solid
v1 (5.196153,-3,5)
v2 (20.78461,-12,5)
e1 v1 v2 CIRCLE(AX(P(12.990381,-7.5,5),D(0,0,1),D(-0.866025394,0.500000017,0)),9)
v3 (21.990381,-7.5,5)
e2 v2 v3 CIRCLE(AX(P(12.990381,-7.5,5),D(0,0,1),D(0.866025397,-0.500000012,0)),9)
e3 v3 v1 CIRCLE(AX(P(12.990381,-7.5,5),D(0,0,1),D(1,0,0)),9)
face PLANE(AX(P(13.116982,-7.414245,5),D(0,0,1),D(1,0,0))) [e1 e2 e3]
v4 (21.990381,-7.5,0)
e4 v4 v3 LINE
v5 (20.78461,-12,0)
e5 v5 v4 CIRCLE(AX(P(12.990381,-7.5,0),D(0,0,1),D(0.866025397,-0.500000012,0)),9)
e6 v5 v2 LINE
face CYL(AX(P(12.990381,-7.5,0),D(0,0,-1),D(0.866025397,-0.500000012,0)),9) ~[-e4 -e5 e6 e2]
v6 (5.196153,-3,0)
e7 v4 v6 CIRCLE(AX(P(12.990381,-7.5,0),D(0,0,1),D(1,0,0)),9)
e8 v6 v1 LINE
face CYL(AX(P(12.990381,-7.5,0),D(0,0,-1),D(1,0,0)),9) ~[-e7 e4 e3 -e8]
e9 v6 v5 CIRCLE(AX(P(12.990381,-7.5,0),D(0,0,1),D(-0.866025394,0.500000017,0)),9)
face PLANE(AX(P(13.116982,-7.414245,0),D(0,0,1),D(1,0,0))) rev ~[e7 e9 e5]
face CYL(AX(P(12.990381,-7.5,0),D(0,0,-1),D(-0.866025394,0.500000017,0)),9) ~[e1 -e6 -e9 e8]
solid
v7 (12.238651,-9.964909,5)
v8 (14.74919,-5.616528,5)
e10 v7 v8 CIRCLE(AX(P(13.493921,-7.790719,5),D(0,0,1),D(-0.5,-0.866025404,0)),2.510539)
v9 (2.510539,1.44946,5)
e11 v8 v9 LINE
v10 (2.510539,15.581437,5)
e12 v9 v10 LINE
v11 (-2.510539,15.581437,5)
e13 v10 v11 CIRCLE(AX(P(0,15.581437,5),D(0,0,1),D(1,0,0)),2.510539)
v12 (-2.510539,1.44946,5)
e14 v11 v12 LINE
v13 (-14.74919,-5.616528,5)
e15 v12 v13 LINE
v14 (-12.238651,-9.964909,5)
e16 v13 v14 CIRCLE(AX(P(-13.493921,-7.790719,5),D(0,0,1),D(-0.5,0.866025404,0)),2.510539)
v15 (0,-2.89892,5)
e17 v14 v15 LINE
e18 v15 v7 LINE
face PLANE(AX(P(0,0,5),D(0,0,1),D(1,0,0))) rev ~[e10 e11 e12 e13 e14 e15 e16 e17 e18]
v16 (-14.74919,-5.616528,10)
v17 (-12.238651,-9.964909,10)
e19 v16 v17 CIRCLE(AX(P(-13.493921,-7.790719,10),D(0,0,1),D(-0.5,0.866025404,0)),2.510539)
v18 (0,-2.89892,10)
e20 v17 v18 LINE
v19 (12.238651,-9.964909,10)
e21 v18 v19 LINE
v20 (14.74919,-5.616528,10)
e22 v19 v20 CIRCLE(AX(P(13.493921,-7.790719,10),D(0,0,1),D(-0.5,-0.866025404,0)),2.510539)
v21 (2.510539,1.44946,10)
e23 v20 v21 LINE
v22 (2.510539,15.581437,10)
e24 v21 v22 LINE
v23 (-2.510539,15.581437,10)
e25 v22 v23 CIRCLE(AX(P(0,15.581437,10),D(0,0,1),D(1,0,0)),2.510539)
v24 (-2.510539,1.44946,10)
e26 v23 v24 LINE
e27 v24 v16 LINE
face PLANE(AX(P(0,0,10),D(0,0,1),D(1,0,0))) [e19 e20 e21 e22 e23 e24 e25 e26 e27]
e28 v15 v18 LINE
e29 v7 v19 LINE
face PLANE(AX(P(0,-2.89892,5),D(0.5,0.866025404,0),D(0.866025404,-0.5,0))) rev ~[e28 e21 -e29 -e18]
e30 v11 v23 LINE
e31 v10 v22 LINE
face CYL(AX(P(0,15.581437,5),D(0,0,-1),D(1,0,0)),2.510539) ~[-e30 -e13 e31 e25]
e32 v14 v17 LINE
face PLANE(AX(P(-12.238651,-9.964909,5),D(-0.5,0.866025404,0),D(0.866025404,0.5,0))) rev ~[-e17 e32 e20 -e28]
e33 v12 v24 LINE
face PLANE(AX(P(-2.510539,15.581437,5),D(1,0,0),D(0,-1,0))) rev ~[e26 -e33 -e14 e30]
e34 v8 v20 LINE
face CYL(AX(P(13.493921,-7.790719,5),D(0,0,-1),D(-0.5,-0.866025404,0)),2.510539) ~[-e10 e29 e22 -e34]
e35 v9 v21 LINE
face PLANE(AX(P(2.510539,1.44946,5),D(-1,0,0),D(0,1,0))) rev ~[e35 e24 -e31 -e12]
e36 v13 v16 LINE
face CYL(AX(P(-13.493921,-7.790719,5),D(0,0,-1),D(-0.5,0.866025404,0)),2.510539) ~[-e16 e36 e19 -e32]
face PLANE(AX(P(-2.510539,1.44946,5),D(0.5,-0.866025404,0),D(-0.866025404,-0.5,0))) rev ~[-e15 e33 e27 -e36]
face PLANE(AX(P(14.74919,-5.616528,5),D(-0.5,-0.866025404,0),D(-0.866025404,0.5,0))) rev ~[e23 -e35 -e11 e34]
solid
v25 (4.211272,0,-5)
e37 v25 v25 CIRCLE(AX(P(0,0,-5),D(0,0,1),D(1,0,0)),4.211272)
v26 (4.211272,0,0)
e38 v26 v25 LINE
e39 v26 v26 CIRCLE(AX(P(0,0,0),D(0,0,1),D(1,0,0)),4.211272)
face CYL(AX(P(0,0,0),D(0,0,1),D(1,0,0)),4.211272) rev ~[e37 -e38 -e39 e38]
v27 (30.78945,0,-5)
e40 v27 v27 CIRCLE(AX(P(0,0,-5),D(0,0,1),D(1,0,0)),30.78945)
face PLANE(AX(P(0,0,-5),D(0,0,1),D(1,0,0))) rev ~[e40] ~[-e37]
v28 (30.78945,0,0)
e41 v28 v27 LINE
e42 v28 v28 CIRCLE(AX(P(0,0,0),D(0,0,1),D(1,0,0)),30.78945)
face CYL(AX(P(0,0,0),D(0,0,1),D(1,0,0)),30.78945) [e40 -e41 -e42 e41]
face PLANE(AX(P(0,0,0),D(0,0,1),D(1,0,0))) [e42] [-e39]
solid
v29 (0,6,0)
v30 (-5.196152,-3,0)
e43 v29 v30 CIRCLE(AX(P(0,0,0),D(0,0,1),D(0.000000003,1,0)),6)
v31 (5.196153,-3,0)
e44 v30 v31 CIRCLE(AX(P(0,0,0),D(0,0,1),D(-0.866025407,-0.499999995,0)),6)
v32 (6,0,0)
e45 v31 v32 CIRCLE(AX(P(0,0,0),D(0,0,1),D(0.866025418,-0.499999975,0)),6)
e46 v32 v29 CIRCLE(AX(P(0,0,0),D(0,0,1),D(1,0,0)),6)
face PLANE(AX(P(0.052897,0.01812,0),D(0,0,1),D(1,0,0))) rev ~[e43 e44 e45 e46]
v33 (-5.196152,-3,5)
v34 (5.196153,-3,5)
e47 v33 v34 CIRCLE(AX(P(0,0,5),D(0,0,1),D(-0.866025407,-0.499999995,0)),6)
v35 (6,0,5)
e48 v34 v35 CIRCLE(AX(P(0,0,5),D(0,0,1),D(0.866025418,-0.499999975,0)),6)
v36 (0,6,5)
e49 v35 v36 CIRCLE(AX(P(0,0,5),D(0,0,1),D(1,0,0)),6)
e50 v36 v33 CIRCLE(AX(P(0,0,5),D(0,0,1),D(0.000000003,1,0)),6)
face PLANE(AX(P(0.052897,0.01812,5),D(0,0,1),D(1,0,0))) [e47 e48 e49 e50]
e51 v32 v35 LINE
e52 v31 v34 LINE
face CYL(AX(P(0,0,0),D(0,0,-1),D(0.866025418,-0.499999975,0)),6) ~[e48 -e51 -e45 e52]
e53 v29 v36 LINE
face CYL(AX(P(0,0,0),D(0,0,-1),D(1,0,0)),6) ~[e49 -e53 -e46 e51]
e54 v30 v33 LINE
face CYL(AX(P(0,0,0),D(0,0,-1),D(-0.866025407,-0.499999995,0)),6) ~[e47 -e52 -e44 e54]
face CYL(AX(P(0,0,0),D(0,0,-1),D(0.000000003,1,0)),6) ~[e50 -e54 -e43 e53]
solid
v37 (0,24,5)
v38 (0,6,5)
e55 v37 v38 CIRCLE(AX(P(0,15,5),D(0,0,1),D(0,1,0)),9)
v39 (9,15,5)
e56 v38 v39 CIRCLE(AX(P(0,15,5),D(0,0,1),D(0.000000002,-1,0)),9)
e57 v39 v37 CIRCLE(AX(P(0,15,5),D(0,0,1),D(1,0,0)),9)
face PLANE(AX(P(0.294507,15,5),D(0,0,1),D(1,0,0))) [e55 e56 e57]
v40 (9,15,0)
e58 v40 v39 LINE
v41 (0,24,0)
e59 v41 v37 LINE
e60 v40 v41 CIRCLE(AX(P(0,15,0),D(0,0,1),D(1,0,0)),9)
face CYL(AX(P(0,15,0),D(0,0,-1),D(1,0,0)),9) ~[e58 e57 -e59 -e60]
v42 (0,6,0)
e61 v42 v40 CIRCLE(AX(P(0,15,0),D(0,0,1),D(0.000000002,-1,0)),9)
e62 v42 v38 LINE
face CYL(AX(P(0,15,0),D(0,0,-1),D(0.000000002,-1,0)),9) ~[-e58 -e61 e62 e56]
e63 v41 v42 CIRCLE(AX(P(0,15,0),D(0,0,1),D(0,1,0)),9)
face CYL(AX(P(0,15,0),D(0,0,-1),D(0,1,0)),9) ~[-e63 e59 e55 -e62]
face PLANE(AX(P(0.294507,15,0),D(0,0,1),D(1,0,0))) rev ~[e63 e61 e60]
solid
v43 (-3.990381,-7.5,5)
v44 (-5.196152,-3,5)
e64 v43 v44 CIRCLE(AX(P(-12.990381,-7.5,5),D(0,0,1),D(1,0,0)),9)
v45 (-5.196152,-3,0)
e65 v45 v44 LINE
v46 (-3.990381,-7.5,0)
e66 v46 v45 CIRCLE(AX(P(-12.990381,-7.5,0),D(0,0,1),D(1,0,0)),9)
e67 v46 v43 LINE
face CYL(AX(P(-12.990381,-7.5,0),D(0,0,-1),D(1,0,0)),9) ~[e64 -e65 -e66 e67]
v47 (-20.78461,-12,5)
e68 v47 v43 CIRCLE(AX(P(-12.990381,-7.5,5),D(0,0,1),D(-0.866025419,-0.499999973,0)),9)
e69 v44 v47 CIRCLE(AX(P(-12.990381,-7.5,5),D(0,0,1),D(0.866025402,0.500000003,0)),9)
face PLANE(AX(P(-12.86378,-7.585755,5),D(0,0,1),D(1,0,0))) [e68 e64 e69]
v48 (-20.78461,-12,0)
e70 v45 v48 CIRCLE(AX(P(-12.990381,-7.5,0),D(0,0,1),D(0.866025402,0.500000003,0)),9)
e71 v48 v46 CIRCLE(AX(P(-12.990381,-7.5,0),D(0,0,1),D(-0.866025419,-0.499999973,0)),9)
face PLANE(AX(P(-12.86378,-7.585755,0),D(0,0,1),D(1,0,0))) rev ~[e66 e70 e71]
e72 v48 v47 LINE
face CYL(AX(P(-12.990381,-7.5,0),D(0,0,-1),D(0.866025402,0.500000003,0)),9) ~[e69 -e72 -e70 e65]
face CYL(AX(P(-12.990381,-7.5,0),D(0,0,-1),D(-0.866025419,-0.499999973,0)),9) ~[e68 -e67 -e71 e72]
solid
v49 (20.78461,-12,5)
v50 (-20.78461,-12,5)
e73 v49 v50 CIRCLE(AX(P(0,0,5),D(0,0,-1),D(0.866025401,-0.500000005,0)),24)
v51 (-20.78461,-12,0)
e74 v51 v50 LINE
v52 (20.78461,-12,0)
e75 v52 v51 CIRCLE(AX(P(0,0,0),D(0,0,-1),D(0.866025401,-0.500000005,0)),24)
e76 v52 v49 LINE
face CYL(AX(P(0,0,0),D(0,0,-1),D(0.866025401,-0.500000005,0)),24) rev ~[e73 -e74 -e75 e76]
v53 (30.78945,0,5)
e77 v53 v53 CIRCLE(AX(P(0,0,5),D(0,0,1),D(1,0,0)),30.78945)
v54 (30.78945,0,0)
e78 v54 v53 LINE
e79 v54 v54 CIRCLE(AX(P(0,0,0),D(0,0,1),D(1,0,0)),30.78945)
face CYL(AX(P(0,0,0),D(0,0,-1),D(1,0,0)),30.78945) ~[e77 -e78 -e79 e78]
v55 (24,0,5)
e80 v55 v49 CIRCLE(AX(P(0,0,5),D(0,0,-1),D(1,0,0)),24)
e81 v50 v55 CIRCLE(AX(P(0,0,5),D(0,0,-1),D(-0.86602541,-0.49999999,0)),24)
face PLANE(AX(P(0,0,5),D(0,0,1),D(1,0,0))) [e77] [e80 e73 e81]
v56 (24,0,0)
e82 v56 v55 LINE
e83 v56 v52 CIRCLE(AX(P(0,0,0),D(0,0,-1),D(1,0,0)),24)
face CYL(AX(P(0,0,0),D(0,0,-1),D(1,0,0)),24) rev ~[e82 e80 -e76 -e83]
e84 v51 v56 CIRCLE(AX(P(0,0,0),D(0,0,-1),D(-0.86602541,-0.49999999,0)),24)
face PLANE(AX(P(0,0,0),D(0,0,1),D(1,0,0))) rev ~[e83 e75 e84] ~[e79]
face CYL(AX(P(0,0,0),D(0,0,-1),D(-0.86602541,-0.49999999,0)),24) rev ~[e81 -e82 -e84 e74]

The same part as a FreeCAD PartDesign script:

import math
import FreeCAD as App
import Part
import Sketcher
Q = App.Units.Quantity

doc = App.newDocument("Part")
params = doc.addObject("Spreadsheet::Sheet", "Params")
for row, (alias, value) in enumerate([
    ("sketch1_radius", "9 mm"),
    ("pad1_length", "5 mm"),
    ("sketch2_radius", "6 mm"),
    ("pad2_length", "5 mm"),
    ("sketch3_radius", "24 mm"),
    ("pad3_length", "5 mm"),
    ("sketch4_radius", "9 mm"),
    ("pad4_length", "5 mm"),
    ("sketch5_radius", "9 mm"),
    ("pad5_length", "5 mm"),
    ("pad6_length", "5 mm"),
    ("pad7_length", "5 mm"),
], start=1):
    params.set(f"A{row}", alias)
    params.set(f"B{row}", "=" + value)
    params.setAlias(f"B{row}", alias)

body = doc.addObject("PartDesign::Body", "Body")

# Sketch on XY plane
sketch1 = body.newObject("Sketcher::SketchObject", "Sketch")
sketch1.AttachmentSupport = (doc.getObject("XY_Plane"), [""])
sketch1.MapMode = "FlatFace"
sketch1.addGeometry([
    Part.ArcOfCircle(Part.Circle(App.Vector(0, 15, 0), App.Vector(0, 0, 1), 9), math.radians(90), math.radians(270)),
    Part.ArcOfCircle(Part.Circle(App.Vector(0, 15, 0), App.Vector(0, 0, 1), 9), math.radians(-90), math.radians(0)),
    Part.ArcOfCircle(Part.Circle(App.Vector(0, 15, 0), App.Vector(0, 0, 1), 9), math.radians(0), math.radians(90)),
], False)
sketch1.addConstraint([
    Sketcher.Constraint("Tangent", 0, 2, 1, 1),
    Sketcher.Constraint("Tangent", 1, 2, 2, 1),
    Sketcher.Constraint("Tangent", 2, 2, 0, 1),
    Sketcher.Constraint("PointOnObject", 0, 3, -2),
    Sketcher.Constraint("PointOnObject", 0, 2, -2),
    Sketcher.Constraint("PointOnObject", 2, 2, -2),
    Sketcher.Constraint("Horizontal", 2, 3, 1, 2),
    Sketcher.Constraint("Radius", 0, Q("9 mm")),
    Sketcher.Constraint("DistanceY", -1, 1, 0, 3, Q("15 mm")),
])
sketch1.setExpression("Constraints[7]", "Params.sketch1_radius")
pad1 = body.newObject("PartDesign::Pad", "Pad")
pad1.Profile = sketch1
pad1.setExpression("Length", "Params.pad1_length")
body2 = doc.addObject("PartDesign::Body", "Body001")

# Sketch on XY plane
sketch2 = body2.newObject("Sketcher::SketchObject", "Sketch001")
sketch2.AttachmentSupport = (doc.getObject("XY_Plane001"), [""])
sketch2.MapMode = "FlatFace"
sketch2.addGeometry([
    Part.ArcOfCircle(Part.Circle(App.Vector(0, 0, 0), App.Vector(0, 0, 1), 6), math.radians(-30), math.radians(0)),
    Part.ArcOfCircle(Part.Circle(App.Vector(0, 0, 0), App.Vector(0, 0, 1), 6), math.radians(0), math.radians(90)),
    Part.ArcOfCircle(Part.Circle(App.Vector(0, 0, 0), App.Vector(0, 0, 1), 6), math.radians(90), math.radians(210)),
    Part.ArcOfCircle(Part.Circle(App.Vector(0, 0, 0), App.Vector(0, 0, 1), 6), math.radians(-150), math.radians(-30)),
], False)
sketch2.addConstraint([
    Sketcher.Constraint("Tangent", 0, 2, 1, 1),
    Sketcher.Constraint("Tangent", 1, 2, 2, 1),
    Sketcher.Constraint("Tangent", 2, 2, 3, 1),
    Sketcher.Constraint("Tangent", 3, 2, 0, 1),
    Sketcher.Constraint("Coincident", 0, 3, -1, 1),
    Sketcher.Constraint("Equal", 0, 1),
    Sketcher.Constraint("PointOnObject", 0, 2, -1),
    Sketcher.Constraint("PointOnObject", 1, 2, -2),
    Sketcher.Constraint("Horizontal", 2, 2, 3, 2),
    Sketcher.Constraint("Radius", 0, Q("6 mm")),
    Sketcher.Constraint("DistanceY", 2, 2, -1, 1, Q("3 mm")),
])
sketch2.setExpression("Constraints[9]", "Params.sketch2_radius")
pad2 = body2.newObject("PartDesign::Pad", "Pad001")
pad2.Profile = sketch2
pad2.setExpression("Length", "Params.pad2_length")
body3 = doc.addObject("PartDesign::Body", "Body002")

# Sketch on XY plane
sketch3 = body3.newObject("Sketcher::SketchObject", "Sketch002")
sketch3.AttachmentSupport = (doc.getObject("XY_Plane002"), [""])
sketch3.MapMode = "FlatFace"
sketch3.addGeometry([
    Part.Circle(App.Vector(0, 0, 0), App.Vector(0, 0, 1), 31),
    Part.ArcOfCircle(Part.Circle(App.Vector(0, 0, 0), App.Vector(0, 0, 1), 24), math.radians(-150), math.radians(-30)),
    Part.ArcOfCircle(Part.Circle(App.Vector(0, 0, 0), App.Vector(0, 0, 1), 24), math.radians(0), math.radians(210)),
    Part.ArcOfCircle(Part.Circle(App.Vector(0, 0, 0), App.Vector(0, 0, 1), 24), math.radians(-30), math.radians(0)),
], False)
sketch3.addConstraint([
    Sketcher.Constraint("Tangent", 1, 1, 2, 2),
    Sketcher.Constraint("Tangent", 2, 1, 3, 2),
    Sketcher.Constraint("Tangent", 3, 1, 1, 2),
    Sketcher.Constraint("Coincident", 0, 3, -1, 1),
    Sketcher.Constraint("Coincident", 1, 3, -1, 1),
    Sketcher.Constraint("PointOnObject", 2, 1, -1),
    Sketcher.Constraint("Horizontal", 1, 1, 3, 1),
    Sketcher.Constraint("Radius", 1, Q("24 mm")),
    Sketcher.Constraint("DistanceY", 1, 1, -1, 1, Q("12 mm")),
    Sketcher.Constraint("Diameter", 0, Q("61.5789 mm")),
])
sketch3.setExpression("Constraints[7]", "Params.sketch3_radius")
pad3 = body3.newObject("PartDesign::Pad", "Pad002")
pad3.Profile = sketch3
pad3.setExpression("Length", "Params.pad3_length")
body4 = doc.addObject("PartDesign::Body", "Body003")

# Sketch on XY plane
sketch4 = body4.newObject("Sketcher::SketchObject", "Sketch003")
sketch4.AttachmentSupport = (doc.getObject("XY_Plane003"), [""])
sketch4.MapMode = "FlatFace"
sketch4.addGeometry([
    Part.ArcOfCircle(Part.Circle(App.Vector(-13, -7.5, 0), App.Vector(0, 0, 1), 9), math.radians(0), math.radians(30)),
    Part.ArcOfCircle(Part.Circle(App.Vector(-13, -7.5, 0), App.Vector(0, 0, 1), 9), math.radians(30), math.radians(210)),
    Part.ArcOfCircle(Part.Circle(App.Vector(-13, -7.5, 0), App.Vector(0, 0, 1), 9), math.radians(-150), math.radians(0)),
], False)
sketch4.addConstraint([
    Sketcher.Constraint("Tangent", 0, 2, 1, 1),
    Sketcher.Constraint("Tangent", 1, 2, 2, 1),
    Sketcher.Constraint("Tangent", 2, 2, 0, 1),
    Sketcher.Constraint("Horizontal", 1, 3, 2, 2),
    Sketcher.Constraint("Radius", 0, Q("9 mm")),
    Sketcher.Constraint("DistanceY", 0, 2, -1, 1, Q("3 mm")),
    Sketcher.Constraint("DistanceY", 1, 2, -1, 1, Q("12 mm")),
    Sketcher.Constraint("DistanceY", 0, 3, -1, 1, Q("7.5 mm")),
    Sketcher.Constraint("DistanceX", 0, 3, -1, 1, Q("12.990381 mm")),
])
sketch4.setExpression("Constraints[4]", "Params.sketch4_radius")
pad4 = body4.newObject("PartDesign::Pad", "Pad003")
pad4.Profile = sketch4
pad4.setExpression("Length", "Params.pad4_length")
body5 = doc.addObject("PartDesign::Body", "Body004")

# Sketch on XY plane
sketch5 = body5.newObject("Sketcher::SketchObject", "Sketch004")
sketch5.AttachmentSupport = (doc.getObject("XY_Plane004"), [""])
sketch5.MapMode = "FlatFace"
sketch5.addGeometry([
    Part.ArcOfCircle(Part.Circle(App.Vector(13, -7.5, 0), App.Vector(0, 0, 1), 9), math.radians(0), math.radians(150)),
    Part.ArcOfCircle(Part.Circle(App.Vector(13, -7.5, 0), App.Vector(0, 0, 1), 9), math.radians(150), math.radians(330)),
    Part.ArcOfCircle(Part.Circle(App.Vector(13, -7.5, 0), App.Vector(0, 0, 1), 9), math.radians(-30), math.radians(0)),
], False)
sketch5.addConstraint([
    Sketcher.Constraint("Tangent", 0, 2, 1, 1),
    Sketcher.Constraint("Tangent", 1, 2, 2, 1),
    Sketcher.Constraint("Tangent", 2, 2, 0, 1),
    Sketcher.Constraint("Horizontal", 1, 3, 2, 2),
    Sketcher.Constraint("Radius", 0, Q("9 mm")),
    Sketcher.Constraint("DistanceY", 0, 2, -1, 1, Q("3 mm")),
    Sketcher.Constraint("DistanceY", 1, 2, -1, 1, Q("12 mm")),
    Sketcher.Constraint("DistanceY", 0, 3, -1, 1, Q("7.5 mm")),
    Sketcher.Constraint("DistanceX", -1, 1, 0, 3, Q("12.990381 mm")),
])
sketch5.setExpression("Constraints[4]", "Params.sketch5_radius")
pad5 = body5.newObject("PartDesign::Pad", "Pad004")
pad5.Profile = sketch5
pad5.setExpression("Length", "Params.pad5_length")
body6 = doc.addObject("PartDesign::Body", "Body005")

# Sketch on XY plane
sketch6 = body6.newObject("Sketcher::SketchObject", "Sketch005")
sketch6.AttachmentSupport = (doc.getObject("XY_Plane005"), [""])
sketch6.MapMode = "FlatFace"
sketch6.AttachmentOffset = App.Placement(App.Vector(0, 0, 5), App.Rotation())
sketch6.addGeometry([
    Part.LineSegment(App.Vector(-2.5, 15.6, 0), App.Vector(-2.5, 1.4, 0)),  # 0
    Part.LineSegment(App.Vector(-2.5, 1.4, 0), App.Vector(-14.7, -5.6, 0)),  # 1
    Part.ArcOfCircle(Part.Circle(App.Vector(-13.5, -7.8, 0), App.Vector(0, 0, 1), 2.5), math.radians(120), math.radians(300)),  # 2
    Part.LineSegment(App.Vector(-12.2, -10, 0), App.Vector(0, -2.9, 0)),  # 3
    Part.LineSegment(App.Vector(0, -2.9, 0), App.Vector(12.2, -10, 0)),  # 4
    Part.ArcOfCircle(Part.Circle(App.Vector(13.5, -7.8, 0), App.Vector(0, 0, 1), 2.5), math.radians(-120), math.radians(60)),  # 5
    Part.LineSegment(App.Vector(14.7, -5.6, 0), App.Vector(2.5, 1.4, 0)),  # 6
    Part.LineSegment(App.Vector(2.5, 1.4, 0), App.Vector(2.5, 15.6, 0)),  # 7
    Part.ArcOfCircle(Part.Circle(App.Vector(0, 15.6, 0), App.Vector(0, 0, 1), 2.5), math.radians(0), math.radians(180)),  # 8
], False)
sketch6.addConstraint([
    Sketcher.Constraint("Coincident", 0, 2, 1, 1),
    Sketcher.Constraint("Tangent", 1, 2, 2, 1),
    Sketcher.Constraint("Tangent", 2, 2, 3, 1),
    Sketcher.Constraint("Coincident", 3, 2, 4, 1),
    Sketcher.Constraint("Tangent", 4, 2, 5, 1),
    Sketcher.Constraint("Tangent", 5, 2, 6, 1),
    Sketcher.Constraint("Coincident", 6, 2, 7, 1),
    Sketcher.Constraint("Tangent", 7, 2, 8, 1),
    Sketcher.Constraint("Tangent", 8, 2, 0, 1),
    Sketcher.Constraint("Vertical", 0),
    Sketcher.Constraint("Vertical", 7),
    Sketcher.Constraint("Equal", 2, 5),
    Sketcher.Constraint("Equal", 5, 8),
    Sketcher.Constraint("Symmetric", 2, 3, 5, 3, -2),
    Sketcher.Constraint("Symmetric", 0, 2, 6, 2, -2),
    Sketcher.Constraint("PointOnObject", 3, 2, -2),
    Sketcher.Constraint("Parallel", 1, 3),
    Sketcher.Constraint("Equal", 1, 3),
    Sketcher.Constraint("Radius", 2, Q("2.510539 mm")),
    Sketcher.Constraint("DistanceY", 2, 3, 3, 2, Q("4.891798 mm")),
    Sketcher.Constraint("DistanceY", 0, 2, 0, 1, Q("14.131977 mm")),
    Sketcher.Constraint("DistanceY", 2, 3, -1, 1, Q("7.790719 mm")),
])
pad6 = body6.newObject("PartDesign::Pad", "Pad005")
pad6.Profile = sketch6
pad6.setExpression("Length", "Params.pad6_length")
body7 = doc.addObject("PartDesign::Body", "Body006")

# Sketch on XY plane
sketch7 = body7.newObject("Sketcher::SketchObject", "Sketch006")
sketch7.AttachmentSupport = (doc.getObject("XY_Plane006"), [""])
sketch7.MapMode = "FlatFace"
sketch7.addGeometry([
    Part.Circle(App.Vector(0, 0, 0), App.Vector(0, 0, 1), 30.8),
    Part.Circle(App.Vector(0, 0, 0), App.Vector(0, 0, 1), 4.2),
], False)
sketch7.addConstraint([
    Sketcher.Constraint("Coincident", 0, 3, -1, 1),
    Sketcher.Constraint("Coincident", 1, 3, -1, 1),
    Sketcher.Constraint("Diameter", 0, Q("61.5789 mm")),
    Sketcher.Constraint("Diameter", 1, Q("8.422543 mm")),
])
pad7 = body7.newObject("PartDesign::Pad", "Pad006")
pad7.Profile = sketch7
pad7.setExpression("Length", "Params.pad7_length")
pad7.Reversed = True

doc.recompute()
